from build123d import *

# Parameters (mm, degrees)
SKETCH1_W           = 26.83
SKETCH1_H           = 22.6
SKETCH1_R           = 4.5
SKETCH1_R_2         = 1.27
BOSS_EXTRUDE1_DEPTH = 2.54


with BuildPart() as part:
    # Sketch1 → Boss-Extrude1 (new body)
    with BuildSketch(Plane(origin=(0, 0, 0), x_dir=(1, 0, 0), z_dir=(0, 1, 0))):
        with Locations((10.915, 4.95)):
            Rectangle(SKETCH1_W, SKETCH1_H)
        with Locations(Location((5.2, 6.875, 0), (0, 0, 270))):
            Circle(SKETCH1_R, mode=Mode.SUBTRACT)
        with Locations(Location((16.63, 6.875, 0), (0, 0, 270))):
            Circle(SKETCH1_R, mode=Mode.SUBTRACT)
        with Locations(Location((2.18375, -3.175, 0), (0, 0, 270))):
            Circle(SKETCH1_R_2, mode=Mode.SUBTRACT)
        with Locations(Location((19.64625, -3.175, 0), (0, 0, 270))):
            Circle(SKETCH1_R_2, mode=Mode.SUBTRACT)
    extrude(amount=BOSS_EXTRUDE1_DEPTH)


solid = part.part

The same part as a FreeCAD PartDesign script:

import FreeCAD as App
import Part
import Sketcher
from FreeCAD import Vector

doc = App.newDocument("Part")
body = doc.addObject("PartDesign::Body", "Body")

# Sketch on XZ plane
sketch1 = doc.addObject("Sketcher::SketchObject", "Sketch")
body.addObject(sketch1)
sketch1.AttachmentSupport = (doc.XZ_Plane, [""])
sketch1.MapMode = "FlatFace"
sketch1.addGeometry(Part.LineSegment(Vector(-2.5, -16.2, 0), Vector(-2.5, 6.3, 0)), False)
sketch1.addGeometry(Part.LineSegment(Vector(-2.5, 6.3, 0), Vector(24.3, 6.3, 0)), False)
sketch1.addGeometry(Part.LineSegment(Vector(24.3, 6.3, 0), Vector(24.3, -16.2, 0)), False)
sketch1.addGeometry(Part.LineSegment(Vector(24.3, -16.2, 0), Vector(-2.5, -16.2, 0)), False)
sketch1.addGeometry(Part.Circle(Vector(2.2, 3.2, 0), Vector(0, 0, 1), 1.3), False)
sketch1.addGeometry(Part.Circle(Vector(19.6, 3.2, 0), Vector(0, 0, 1), 1.3), False)
sketch1.addGeometry(Part.Circle(Vector(5.2, -6.9, 0), Vector(0, 0, 1), 4.5), False)
sketch1.addGeometry(Part.Circle(Vector(16.6, -6.9, 0), Vector(0, 0, 1), 4.5), False)
sketch1.addConstraint(Sketcher.Constraint("Coincident", 0, 2, 1, 1))
sketch1.addConstraint(Sketcher.Constraint("Coincident", 1, 2, 2, 1))
sketch1.addConstraint(Sketcher.Constraint("Coincident", 2, 2, 3, 1))
sketch1.addConstraint(Sketcher.Constraint("Coincident", 3, 2, 0, 1))
sketch1.addConstraint(Sketcher.Constraint("Vertical", 0))
sketch1.addConstraint(Sketcher.Constraint("Horizontal", 1))
sketch1.addConstraint(Sketcher.Constraint("Vertical", 2))
sketch1.addConstraint(Sketcher.Constraint("Horizontal", 3))
sketch1.addConstraint(Sketcher.Constraint("Equal", 4, 5))
sketch1.addConstraint(Sketcher.Constraint("Equal", 6, 7))
sketch1.addConstraint(Sketcher.Constraint("Horizontal", 4, 3, 5, 3))
sketch1.addConstraint(Sketcher.Constraint("Horizontal", 6, 3, 7, 3))
sketch1.addConstraint(Sketcher.Constraint("Diameter", 6, 9.0))
sketch1.addConstraint(Sketcher.Constraint("Diameter", 4, 2.54))
sketch1.addConstraint(Sketcher.Constraint("DistanceY", 0, 1, 0, 2, 22.6))
sketch1.addConstraint(Sketcher.Constraint("DistanceX", 1, 1, 1, 2, 26.83))
sketch1.addConstraint(Sketcher.Constraint("DistanceX", -1, 1, 6, 3, 5.2))
sketch1.addConstraint(Sketcher.Constraint("DistanceX", 0, 2, -1, 1, 2.5))
sketch1.addConstraint(Sketcher.Constraint("DistanceX", 7, 3, 1, 2, 7.7))
sketch1.addConstraint(Sketcher.Constraint("DistanceY", -1, 1, 0, 2, 6.35))
sketch1.addConstraint(Sketcher.Constraint("DistanceY", 6, 3, 4, 3, 10.05))
sketch1.addConstraint(Sketcher.Constraint("DistanceY", -1, 1, 4, 3, 3.175))
sketch1.addConstraint(Sketcher.Constraint("DistanceX", 4, 3, 5, 3, 17.4625))
sketch1.addConstraint(Sketcher.Constraint("DistanceX", -1, 1, 4, 3, 2.18375))
pad1 = doc.addObject("PartDesign::Pad", "Pad")
body.addObject(pad1)
pad1.Profile = sketch1
pad1.Length = 2.54
pad1.Reversed = True

doc.recompute()
